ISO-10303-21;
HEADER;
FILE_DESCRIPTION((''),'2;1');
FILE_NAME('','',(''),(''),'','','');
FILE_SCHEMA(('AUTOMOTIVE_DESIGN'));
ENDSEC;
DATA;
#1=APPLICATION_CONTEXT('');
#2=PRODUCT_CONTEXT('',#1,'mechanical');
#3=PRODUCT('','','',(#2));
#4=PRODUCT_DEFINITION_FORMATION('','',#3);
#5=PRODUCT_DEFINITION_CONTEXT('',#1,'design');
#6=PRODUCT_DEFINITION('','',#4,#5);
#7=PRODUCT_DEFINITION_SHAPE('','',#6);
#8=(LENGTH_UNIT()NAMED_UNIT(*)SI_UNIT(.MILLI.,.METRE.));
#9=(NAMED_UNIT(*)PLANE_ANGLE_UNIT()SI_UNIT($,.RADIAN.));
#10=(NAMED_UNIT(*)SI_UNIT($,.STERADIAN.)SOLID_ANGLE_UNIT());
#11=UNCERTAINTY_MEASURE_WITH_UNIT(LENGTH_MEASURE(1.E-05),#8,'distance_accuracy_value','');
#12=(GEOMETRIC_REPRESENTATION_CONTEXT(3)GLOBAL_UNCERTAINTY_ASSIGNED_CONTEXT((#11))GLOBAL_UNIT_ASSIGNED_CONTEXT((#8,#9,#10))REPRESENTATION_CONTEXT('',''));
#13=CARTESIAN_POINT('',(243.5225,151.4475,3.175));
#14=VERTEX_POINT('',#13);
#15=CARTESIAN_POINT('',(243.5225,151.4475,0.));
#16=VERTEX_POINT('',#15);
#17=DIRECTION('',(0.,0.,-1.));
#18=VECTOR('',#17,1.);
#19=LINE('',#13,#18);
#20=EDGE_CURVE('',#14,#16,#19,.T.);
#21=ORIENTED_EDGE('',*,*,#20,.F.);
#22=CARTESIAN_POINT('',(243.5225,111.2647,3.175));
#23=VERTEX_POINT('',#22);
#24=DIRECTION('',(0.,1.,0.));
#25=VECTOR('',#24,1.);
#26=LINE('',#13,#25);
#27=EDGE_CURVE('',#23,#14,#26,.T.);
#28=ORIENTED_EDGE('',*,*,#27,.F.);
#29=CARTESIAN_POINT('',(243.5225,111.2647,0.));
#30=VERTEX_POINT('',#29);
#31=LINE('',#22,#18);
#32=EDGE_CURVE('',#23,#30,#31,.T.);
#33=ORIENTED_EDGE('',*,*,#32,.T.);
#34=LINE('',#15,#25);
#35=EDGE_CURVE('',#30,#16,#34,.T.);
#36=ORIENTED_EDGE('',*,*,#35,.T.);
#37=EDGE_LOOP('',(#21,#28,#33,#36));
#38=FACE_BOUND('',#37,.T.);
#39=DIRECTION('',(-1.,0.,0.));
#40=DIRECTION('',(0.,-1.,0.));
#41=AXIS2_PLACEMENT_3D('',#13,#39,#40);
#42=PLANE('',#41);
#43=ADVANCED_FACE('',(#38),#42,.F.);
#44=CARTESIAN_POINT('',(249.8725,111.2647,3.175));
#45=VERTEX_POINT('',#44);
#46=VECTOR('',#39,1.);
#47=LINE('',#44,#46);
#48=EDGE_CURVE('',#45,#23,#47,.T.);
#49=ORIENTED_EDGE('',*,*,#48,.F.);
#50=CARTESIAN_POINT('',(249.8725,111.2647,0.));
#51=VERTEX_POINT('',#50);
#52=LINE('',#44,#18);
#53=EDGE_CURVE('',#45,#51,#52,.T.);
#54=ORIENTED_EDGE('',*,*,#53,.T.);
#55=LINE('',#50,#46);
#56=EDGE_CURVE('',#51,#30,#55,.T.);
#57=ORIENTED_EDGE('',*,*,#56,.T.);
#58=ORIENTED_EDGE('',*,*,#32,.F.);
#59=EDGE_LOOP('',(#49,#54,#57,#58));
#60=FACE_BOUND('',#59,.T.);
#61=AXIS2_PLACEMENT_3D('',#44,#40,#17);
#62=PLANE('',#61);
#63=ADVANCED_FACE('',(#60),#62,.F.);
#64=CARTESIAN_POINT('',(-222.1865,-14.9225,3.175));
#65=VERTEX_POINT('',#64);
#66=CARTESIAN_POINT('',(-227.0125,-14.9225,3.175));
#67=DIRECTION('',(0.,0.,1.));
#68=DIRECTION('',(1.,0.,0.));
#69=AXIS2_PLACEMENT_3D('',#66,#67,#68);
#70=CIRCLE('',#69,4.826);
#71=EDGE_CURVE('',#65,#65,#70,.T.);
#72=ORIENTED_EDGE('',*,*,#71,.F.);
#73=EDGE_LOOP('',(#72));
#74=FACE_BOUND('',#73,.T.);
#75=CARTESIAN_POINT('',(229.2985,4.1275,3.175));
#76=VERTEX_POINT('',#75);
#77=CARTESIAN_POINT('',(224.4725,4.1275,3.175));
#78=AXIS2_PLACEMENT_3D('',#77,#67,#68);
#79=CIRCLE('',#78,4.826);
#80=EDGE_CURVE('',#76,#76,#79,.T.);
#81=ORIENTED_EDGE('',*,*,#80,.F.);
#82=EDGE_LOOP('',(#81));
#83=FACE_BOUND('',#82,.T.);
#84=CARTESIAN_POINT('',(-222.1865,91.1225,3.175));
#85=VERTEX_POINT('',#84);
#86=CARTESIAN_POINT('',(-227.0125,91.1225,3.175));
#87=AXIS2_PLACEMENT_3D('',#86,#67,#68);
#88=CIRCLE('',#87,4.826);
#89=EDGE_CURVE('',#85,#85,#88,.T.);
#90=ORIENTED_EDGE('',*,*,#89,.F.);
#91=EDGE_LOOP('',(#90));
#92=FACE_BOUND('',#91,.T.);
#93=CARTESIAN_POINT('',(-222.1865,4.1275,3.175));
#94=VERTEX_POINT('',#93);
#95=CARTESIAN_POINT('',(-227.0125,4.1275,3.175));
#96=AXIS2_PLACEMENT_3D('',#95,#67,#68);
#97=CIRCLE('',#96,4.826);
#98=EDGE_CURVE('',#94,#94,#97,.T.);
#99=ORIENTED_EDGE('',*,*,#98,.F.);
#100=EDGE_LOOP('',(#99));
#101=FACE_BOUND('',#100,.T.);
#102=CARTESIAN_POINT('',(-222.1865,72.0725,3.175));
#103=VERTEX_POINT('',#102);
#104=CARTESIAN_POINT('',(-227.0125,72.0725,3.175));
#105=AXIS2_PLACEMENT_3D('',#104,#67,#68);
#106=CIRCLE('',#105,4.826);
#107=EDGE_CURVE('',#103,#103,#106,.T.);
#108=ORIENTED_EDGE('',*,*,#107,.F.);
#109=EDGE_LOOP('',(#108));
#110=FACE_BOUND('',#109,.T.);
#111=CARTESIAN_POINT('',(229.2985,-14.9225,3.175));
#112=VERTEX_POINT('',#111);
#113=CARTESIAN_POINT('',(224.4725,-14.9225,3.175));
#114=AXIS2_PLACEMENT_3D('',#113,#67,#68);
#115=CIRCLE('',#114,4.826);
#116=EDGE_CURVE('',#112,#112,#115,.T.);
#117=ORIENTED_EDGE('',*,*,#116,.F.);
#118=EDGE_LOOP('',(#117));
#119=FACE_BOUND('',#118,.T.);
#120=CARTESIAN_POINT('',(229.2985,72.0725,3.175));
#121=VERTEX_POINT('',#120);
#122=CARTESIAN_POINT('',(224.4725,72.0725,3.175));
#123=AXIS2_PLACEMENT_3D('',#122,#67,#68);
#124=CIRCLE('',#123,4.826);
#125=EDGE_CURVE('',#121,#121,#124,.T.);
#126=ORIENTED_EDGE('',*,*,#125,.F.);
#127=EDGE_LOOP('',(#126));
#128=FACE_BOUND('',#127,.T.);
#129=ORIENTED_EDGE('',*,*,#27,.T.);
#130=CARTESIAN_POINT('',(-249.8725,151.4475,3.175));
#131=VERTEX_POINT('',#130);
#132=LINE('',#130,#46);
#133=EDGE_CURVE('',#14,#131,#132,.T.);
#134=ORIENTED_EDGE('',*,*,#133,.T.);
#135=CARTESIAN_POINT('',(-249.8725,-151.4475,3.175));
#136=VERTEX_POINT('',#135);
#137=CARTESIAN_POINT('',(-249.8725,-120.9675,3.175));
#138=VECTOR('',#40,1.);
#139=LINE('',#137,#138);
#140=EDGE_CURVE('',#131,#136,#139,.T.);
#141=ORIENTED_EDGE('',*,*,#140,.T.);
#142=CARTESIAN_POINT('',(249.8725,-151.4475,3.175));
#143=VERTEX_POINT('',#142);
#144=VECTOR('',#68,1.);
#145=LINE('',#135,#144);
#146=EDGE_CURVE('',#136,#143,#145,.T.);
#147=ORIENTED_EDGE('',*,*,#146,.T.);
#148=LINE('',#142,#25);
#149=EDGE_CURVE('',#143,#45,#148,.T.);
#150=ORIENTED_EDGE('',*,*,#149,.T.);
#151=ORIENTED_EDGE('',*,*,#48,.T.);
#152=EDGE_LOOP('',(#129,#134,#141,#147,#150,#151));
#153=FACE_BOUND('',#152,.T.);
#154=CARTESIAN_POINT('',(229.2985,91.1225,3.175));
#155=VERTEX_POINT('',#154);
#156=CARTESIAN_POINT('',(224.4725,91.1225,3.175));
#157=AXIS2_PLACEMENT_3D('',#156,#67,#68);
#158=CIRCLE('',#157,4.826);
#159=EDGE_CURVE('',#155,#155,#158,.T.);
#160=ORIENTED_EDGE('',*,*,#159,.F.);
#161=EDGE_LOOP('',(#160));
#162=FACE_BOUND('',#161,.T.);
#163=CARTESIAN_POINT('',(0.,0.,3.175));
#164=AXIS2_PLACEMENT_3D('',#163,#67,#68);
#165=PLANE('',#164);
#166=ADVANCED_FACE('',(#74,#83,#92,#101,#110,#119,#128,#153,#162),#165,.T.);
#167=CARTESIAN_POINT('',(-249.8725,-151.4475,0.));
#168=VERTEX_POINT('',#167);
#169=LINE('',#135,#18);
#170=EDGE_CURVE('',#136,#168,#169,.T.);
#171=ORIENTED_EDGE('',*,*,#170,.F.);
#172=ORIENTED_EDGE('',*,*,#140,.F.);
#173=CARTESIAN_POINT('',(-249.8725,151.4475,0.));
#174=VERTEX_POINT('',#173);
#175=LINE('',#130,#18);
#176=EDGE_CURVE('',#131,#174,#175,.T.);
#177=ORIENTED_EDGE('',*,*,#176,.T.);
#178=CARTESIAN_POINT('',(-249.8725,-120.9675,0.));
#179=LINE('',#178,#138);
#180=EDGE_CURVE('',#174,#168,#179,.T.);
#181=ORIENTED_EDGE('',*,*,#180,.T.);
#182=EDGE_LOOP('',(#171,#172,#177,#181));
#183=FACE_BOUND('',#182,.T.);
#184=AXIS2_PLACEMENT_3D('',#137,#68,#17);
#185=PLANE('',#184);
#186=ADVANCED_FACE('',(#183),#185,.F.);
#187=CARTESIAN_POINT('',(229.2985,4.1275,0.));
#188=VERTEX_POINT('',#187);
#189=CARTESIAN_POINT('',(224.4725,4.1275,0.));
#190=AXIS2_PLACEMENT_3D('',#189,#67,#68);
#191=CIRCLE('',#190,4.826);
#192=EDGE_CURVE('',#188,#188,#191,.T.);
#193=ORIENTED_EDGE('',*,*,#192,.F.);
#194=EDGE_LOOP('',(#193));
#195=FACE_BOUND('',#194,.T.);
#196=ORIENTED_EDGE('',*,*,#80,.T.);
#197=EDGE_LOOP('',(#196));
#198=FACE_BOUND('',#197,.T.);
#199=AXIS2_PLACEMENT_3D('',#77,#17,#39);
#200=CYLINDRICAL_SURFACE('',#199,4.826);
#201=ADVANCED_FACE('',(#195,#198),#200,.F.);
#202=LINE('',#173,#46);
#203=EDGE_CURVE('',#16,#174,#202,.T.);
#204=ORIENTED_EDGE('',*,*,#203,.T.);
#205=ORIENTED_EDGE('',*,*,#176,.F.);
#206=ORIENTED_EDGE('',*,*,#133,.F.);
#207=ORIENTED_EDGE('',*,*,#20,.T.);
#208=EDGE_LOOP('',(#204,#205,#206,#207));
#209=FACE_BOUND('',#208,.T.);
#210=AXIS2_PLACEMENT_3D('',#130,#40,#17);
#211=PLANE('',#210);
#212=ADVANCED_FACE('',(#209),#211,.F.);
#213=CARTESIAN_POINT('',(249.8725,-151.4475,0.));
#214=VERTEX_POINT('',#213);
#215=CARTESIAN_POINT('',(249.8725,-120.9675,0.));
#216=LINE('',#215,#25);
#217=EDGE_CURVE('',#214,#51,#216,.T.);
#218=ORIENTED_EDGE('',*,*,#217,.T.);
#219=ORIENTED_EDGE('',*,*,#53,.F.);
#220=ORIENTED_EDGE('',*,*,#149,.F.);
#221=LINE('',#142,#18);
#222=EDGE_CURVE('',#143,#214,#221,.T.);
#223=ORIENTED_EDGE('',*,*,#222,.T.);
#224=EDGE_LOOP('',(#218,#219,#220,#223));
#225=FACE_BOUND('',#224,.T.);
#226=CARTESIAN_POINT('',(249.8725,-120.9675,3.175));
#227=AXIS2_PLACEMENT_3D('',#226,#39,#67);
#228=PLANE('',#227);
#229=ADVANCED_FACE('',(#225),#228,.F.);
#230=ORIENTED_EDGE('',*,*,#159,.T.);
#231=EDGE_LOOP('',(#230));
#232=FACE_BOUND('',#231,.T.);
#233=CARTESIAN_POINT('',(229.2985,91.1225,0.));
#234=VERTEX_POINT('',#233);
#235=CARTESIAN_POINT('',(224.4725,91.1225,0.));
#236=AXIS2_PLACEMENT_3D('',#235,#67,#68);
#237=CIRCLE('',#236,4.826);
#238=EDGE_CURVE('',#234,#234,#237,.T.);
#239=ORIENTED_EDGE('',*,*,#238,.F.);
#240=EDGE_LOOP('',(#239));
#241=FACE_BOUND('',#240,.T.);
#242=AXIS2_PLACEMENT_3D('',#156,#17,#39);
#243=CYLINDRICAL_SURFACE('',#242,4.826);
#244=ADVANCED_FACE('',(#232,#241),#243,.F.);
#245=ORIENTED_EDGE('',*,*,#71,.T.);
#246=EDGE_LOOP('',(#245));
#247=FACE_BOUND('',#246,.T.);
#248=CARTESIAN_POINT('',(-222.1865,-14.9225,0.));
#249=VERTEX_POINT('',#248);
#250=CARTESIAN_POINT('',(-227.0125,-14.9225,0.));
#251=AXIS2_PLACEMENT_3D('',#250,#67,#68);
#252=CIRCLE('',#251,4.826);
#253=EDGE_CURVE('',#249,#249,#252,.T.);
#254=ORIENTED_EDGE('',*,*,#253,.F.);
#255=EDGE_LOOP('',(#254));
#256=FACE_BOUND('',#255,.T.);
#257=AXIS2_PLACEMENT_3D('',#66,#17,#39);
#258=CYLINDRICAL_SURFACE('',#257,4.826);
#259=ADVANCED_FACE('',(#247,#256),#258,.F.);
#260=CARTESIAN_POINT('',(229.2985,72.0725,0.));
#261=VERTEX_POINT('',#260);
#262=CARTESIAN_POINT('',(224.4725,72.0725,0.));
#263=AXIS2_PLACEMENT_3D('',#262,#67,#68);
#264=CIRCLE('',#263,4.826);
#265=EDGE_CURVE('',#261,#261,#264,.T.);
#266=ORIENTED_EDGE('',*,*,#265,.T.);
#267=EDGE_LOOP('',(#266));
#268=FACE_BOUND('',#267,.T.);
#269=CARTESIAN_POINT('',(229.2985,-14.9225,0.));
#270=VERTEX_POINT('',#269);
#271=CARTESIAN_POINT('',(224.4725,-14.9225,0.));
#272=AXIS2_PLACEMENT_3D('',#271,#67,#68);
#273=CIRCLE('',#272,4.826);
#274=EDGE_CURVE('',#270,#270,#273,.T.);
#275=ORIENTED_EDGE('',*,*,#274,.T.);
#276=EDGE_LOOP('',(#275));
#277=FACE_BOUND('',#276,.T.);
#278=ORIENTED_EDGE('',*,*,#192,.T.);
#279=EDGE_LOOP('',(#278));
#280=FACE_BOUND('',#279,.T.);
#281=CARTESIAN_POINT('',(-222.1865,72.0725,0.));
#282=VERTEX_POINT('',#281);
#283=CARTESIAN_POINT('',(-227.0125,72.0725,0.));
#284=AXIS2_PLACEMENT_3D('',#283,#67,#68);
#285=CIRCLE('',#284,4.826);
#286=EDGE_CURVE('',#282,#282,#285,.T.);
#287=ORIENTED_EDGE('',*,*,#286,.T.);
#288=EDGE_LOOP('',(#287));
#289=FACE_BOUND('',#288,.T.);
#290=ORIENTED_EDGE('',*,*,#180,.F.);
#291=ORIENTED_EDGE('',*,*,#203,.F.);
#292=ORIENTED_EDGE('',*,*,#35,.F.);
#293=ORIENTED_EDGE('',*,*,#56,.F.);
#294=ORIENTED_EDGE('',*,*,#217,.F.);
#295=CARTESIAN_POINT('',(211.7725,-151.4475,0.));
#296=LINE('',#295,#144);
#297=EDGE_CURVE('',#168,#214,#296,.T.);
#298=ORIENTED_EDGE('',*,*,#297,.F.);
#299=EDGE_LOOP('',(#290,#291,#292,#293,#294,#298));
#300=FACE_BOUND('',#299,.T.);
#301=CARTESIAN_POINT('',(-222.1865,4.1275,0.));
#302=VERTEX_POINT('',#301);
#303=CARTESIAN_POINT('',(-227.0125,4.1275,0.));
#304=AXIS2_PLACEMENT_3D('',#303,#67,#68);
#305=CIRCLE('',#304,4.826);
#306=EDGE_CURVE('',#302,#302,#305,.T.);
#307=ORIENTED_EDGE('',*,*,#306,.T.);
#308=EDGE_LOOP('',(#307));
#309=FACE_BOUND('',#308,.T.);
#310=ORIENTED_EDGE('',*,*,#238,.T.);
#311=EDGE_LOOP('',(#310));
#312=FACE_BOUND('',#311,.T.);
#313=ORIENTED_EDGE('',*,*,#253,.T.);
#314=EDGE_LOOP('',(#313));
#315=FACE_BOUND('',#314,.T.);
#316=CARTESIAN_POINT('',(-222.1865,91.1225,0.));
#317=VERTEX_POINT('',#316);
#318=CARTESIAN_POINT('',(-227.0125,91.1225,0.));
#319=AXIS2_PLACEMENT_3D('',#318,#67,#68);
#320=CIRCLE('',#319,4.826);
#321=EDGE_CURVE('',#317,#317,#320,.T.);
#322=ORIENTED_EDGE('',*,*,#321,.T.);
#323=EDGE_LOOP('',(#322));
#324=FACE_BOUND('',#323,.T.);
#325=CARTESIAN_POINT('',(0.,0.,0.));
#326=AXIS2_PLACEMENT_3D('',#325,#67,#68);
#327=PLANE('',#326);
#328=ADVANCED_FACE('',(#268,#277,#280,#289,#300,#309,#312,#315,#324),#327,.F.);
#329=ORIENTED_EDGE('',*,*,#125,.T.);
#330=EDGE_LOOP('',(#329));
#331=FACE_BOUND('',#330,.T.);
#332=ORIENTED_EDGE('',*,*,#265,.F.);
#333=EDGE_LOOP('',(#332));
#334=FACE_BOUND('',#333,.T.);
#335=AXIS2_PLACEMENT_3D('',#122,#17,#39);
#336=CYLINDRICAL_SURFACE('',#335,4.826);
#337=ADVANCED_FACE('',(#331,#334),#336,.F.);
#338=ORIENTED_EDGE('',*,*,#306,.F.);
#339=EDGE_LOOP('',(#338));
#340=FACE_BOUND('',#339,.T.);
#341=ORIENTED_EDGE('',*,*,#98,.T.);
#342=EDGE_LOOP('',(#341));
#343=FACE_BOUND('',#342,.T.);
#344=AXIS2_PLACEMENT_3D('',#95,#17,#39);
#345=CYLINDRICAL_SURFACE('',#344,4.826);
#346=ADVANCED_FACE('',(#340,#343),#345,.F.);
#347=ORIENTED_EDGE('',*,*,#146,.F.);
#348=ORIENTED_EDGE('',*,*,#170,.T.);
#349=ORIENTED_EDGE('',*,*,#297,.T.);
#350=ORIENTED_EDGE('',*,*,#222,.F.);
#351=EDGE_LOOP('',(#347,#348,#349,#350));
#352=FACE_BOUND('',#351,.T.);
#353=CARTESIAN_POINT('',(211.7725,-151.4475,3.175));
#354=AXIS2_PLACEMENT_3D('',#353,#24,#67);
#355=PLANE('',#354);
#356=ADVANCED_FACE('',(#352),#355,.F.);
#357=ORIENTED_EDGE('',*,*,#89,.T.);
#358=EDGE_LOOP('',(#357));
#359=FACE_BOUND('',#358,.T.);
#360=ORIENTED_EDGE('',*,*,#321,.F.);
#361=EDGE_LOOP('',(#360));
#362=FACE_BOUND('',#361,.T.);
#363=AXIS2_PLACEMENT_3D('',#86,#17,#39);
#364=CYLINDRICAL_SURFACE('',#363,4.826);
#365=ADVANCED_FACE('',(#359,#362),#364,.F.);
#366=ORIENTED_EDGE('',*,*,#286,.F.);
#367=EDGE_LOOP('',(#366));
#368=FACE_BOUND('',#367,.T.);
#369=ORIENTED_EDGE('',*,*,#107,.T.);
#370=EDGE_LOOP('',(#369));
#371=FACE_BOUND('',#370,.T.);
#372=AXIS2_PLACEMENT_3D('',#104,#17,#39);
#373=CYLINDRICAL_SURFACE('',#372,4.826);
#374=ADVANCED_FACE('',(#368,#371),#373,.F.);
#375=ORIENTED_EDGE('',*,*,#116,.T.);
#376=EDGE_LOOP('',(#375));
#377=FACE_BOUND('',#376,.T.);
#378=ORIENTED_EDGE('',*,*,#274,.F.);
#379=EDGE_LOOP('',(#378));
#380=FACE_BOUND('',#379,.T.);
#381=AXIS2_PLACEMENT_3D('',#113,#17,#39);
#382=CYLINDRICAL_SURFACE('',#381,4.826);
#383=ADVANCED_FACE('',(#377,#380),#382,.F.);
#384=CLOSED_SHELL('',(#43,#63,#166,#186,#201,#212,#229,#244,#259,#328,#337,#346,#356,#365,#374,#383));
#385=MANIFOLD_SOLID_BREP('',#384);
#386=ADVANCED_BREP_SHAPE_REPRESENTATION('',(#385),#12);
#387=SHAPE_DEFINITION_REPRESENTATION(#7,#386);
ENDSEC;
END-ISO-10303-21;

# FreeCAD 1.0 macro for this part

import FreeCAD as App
import Part
import Sketcher
Q = App.Units.Quantity

doc = App.newDocument("Part")
body = doc.addObject("PartDesign::Body", "Body")

# Sketch on XY plane
sketch1 = body.newObject("Sketcher::SketchObject", "Sketch")
sketch1.AttachmentSupport = (doc.getObject("XY_Plane"), [""])
sketch1.MapMode = "FlatFace"
sketch1.addGeometry([
    Part.LineSegment(App.Vector(-249.8725, -151.4475, 0), App.Vector(249.8725, -151.4475, 0)),  # 0
    Part.LineSegment(App.Vector(249.8725, -151.4475, 0), App.Vector(249.8725, 111.2647, 0)),  # 1
    Part.LineSegment(App.Vector(249.8725, 111.2647, 0), App.Vector(243.5225, 111.2647, 0)),  # 2
    Part.LineSegment(App.Vector(243.5225, 111.2647, 0), App.Vector(243.5225, 151.4475, 0)),  # 3
    Part.LineSegment(App.Vector(243.5225, 151.4475, 0), App.Vector(-249.8725, 151.4475, 0)),  # 4
    Part.LineSegment(App.Vector(-249.8725, 151.4475, 0), App.Vector(-249.8725, -151.4475, 0)),  # 5
    Part.Circle(App.Vector(-227.0125, -14.9225, 0), App.Vector(0, 0, 1), 4.826),  # 6
    Part.Circle(App.Vector(-227.0125, 4.1275, 0), App.Vector(0, 0, 1), 4.826),  # 7
    Part.Circle(App.Vector(224.4725, -14.9225, 0), App.Vector(0, 0, 1), 4.826),  # 8
    Part.Circle(App.Vector(224.4725, 4.1275, 0), App.Vector(0, 0, 1), 4.826),  # 9
    Part.Circle(App.Vector(-227.0125, 72.0725, 0), App.Vector(0, 0, 1), 4.826),  # 10
    Part.Circle(App.Vector(-227.0125, 91.1225, 0), App.Vector(0, 0, 1), 4.826),  # 11
    Part.Circle(App.Vector(224.4725, 72.0725, 0), App.Vector(0, 0, 1), 4.826),  # 12
    Part.Circle(App.Vector(224.4725, 91.1225, 0), App.Vector(0, 0, 1), 4.826),  # 13
], False)
sketch1.addConstraint([
    Sketcher.Constraint("Coincident", 0, 2, 1, 1),
    Sketcher.Constraint("Coincident", 1, 2, 2, 1),
    Sketcher.Constraint("Coincident", 2, 2, 3, 1),
    Sketcher.Constraint("Coincident", 3, 2, 4, 1),
    Sketcher.Constraint("Coincident", 4, 2, 5, 1),
    Sketcher.Constraint("Coincident", 5, 2, 0, 1),
    Sketcher.Constraint("Horizontal", 0),
    Sketcher.Constraint("Vertical", 1),
    Sketcher.Constraint("Horizontal", 2),
    Sketcher.Constraint("Vertical", 3),
    Sketcher.Constraint("Horizontal", 4),
    Sketcher.Constraint("Vertical", 5),
    Sketcher.Constraint("Equal", 6, 7),
    Sketcher.Constraint("Equal", 7, 8),
    Sketcher.Constraint("Equal", 8, 9),
    Sketcher.Constraint("Equal", 9, 10),
    Sketcher.Constraint("Equal", 10, 11),
    Sketcher.Constraint("Equal", 11, 12),
    Sketcher.Constraint("Equal", 12, 13),
    Sketcher.Constraint("Symmetric", 0, 2, 4, 2, -1, 1),
    Sketcher.Constraint("Horizontal", 6, 3, 8, 3),
    Sketcher.Constraint("Horizontal", 7, 3, 9, 3),
    Sketcher.Constraint("Horizontal", 10, 3, 12, 3),
    Sketcher.Constraint("Horizontal", 11, 3, 13, 3),
    Sketcher.Constraint("Vertical", 6, 3, 7, 3),
    Sketcher.Constraint("Vertical", 8, 3, 9, 3),
    Sketcher.Constraint("Vertical", 7, 3, 10, 3),
    Sketcher.Constraint("Vertical", 10, 3, 11, 3),
    Sketcher.Constraint("Vertical", 9, 3, 12, 3),
    Sketcher.Constraint("Vertical", 12, 3, 13, 3),
    Sketcher.Constraint("Diameter", 6, Q("0.38 in")),
    Sketcher.Constraint("DistanceX", 8, 3, 0, 2, Q("1 in")),
    Sketcher.Constraint("DistanceX", 2, 2, 2, 1, Q("0.25 in")),
    Sketcher.Constraint("DistanceY", 0, 2, 12, 3, Q("8.8 in")),
    Sketcher.Constraint("DistanceY", 9, 3, 3, 2, Q("5.8 in")),
    Sketcher.Constraint("DistanceX", 4, 2, 11, 3, Q("0.9 in")),
    Sketcher.Constraint("DistanceX", 0, 1, 0, 2, Q("19.675 in")),
    Sketcher.Constraint("DistanceY", 1, 1, 1, 2, Q("10.343 in")),
    Sketcher.Constraint("DistanceY", 3, 1, 3, 2, Q("1.582 in")),
    Sketcher.Constraint("DistanceY", 6, 3, 7, 3, Q("0.75 in")),
    Sketcher.Constraint("DistanceY", 10, 3, 11, 3, Q("0.75 in")),
])
pad1 = body.newObject("PartDesign::Pad", "Pad")
pad1.Profile = sketch1
pad1.Length = Q("0.125 in")

doc.recompute()
